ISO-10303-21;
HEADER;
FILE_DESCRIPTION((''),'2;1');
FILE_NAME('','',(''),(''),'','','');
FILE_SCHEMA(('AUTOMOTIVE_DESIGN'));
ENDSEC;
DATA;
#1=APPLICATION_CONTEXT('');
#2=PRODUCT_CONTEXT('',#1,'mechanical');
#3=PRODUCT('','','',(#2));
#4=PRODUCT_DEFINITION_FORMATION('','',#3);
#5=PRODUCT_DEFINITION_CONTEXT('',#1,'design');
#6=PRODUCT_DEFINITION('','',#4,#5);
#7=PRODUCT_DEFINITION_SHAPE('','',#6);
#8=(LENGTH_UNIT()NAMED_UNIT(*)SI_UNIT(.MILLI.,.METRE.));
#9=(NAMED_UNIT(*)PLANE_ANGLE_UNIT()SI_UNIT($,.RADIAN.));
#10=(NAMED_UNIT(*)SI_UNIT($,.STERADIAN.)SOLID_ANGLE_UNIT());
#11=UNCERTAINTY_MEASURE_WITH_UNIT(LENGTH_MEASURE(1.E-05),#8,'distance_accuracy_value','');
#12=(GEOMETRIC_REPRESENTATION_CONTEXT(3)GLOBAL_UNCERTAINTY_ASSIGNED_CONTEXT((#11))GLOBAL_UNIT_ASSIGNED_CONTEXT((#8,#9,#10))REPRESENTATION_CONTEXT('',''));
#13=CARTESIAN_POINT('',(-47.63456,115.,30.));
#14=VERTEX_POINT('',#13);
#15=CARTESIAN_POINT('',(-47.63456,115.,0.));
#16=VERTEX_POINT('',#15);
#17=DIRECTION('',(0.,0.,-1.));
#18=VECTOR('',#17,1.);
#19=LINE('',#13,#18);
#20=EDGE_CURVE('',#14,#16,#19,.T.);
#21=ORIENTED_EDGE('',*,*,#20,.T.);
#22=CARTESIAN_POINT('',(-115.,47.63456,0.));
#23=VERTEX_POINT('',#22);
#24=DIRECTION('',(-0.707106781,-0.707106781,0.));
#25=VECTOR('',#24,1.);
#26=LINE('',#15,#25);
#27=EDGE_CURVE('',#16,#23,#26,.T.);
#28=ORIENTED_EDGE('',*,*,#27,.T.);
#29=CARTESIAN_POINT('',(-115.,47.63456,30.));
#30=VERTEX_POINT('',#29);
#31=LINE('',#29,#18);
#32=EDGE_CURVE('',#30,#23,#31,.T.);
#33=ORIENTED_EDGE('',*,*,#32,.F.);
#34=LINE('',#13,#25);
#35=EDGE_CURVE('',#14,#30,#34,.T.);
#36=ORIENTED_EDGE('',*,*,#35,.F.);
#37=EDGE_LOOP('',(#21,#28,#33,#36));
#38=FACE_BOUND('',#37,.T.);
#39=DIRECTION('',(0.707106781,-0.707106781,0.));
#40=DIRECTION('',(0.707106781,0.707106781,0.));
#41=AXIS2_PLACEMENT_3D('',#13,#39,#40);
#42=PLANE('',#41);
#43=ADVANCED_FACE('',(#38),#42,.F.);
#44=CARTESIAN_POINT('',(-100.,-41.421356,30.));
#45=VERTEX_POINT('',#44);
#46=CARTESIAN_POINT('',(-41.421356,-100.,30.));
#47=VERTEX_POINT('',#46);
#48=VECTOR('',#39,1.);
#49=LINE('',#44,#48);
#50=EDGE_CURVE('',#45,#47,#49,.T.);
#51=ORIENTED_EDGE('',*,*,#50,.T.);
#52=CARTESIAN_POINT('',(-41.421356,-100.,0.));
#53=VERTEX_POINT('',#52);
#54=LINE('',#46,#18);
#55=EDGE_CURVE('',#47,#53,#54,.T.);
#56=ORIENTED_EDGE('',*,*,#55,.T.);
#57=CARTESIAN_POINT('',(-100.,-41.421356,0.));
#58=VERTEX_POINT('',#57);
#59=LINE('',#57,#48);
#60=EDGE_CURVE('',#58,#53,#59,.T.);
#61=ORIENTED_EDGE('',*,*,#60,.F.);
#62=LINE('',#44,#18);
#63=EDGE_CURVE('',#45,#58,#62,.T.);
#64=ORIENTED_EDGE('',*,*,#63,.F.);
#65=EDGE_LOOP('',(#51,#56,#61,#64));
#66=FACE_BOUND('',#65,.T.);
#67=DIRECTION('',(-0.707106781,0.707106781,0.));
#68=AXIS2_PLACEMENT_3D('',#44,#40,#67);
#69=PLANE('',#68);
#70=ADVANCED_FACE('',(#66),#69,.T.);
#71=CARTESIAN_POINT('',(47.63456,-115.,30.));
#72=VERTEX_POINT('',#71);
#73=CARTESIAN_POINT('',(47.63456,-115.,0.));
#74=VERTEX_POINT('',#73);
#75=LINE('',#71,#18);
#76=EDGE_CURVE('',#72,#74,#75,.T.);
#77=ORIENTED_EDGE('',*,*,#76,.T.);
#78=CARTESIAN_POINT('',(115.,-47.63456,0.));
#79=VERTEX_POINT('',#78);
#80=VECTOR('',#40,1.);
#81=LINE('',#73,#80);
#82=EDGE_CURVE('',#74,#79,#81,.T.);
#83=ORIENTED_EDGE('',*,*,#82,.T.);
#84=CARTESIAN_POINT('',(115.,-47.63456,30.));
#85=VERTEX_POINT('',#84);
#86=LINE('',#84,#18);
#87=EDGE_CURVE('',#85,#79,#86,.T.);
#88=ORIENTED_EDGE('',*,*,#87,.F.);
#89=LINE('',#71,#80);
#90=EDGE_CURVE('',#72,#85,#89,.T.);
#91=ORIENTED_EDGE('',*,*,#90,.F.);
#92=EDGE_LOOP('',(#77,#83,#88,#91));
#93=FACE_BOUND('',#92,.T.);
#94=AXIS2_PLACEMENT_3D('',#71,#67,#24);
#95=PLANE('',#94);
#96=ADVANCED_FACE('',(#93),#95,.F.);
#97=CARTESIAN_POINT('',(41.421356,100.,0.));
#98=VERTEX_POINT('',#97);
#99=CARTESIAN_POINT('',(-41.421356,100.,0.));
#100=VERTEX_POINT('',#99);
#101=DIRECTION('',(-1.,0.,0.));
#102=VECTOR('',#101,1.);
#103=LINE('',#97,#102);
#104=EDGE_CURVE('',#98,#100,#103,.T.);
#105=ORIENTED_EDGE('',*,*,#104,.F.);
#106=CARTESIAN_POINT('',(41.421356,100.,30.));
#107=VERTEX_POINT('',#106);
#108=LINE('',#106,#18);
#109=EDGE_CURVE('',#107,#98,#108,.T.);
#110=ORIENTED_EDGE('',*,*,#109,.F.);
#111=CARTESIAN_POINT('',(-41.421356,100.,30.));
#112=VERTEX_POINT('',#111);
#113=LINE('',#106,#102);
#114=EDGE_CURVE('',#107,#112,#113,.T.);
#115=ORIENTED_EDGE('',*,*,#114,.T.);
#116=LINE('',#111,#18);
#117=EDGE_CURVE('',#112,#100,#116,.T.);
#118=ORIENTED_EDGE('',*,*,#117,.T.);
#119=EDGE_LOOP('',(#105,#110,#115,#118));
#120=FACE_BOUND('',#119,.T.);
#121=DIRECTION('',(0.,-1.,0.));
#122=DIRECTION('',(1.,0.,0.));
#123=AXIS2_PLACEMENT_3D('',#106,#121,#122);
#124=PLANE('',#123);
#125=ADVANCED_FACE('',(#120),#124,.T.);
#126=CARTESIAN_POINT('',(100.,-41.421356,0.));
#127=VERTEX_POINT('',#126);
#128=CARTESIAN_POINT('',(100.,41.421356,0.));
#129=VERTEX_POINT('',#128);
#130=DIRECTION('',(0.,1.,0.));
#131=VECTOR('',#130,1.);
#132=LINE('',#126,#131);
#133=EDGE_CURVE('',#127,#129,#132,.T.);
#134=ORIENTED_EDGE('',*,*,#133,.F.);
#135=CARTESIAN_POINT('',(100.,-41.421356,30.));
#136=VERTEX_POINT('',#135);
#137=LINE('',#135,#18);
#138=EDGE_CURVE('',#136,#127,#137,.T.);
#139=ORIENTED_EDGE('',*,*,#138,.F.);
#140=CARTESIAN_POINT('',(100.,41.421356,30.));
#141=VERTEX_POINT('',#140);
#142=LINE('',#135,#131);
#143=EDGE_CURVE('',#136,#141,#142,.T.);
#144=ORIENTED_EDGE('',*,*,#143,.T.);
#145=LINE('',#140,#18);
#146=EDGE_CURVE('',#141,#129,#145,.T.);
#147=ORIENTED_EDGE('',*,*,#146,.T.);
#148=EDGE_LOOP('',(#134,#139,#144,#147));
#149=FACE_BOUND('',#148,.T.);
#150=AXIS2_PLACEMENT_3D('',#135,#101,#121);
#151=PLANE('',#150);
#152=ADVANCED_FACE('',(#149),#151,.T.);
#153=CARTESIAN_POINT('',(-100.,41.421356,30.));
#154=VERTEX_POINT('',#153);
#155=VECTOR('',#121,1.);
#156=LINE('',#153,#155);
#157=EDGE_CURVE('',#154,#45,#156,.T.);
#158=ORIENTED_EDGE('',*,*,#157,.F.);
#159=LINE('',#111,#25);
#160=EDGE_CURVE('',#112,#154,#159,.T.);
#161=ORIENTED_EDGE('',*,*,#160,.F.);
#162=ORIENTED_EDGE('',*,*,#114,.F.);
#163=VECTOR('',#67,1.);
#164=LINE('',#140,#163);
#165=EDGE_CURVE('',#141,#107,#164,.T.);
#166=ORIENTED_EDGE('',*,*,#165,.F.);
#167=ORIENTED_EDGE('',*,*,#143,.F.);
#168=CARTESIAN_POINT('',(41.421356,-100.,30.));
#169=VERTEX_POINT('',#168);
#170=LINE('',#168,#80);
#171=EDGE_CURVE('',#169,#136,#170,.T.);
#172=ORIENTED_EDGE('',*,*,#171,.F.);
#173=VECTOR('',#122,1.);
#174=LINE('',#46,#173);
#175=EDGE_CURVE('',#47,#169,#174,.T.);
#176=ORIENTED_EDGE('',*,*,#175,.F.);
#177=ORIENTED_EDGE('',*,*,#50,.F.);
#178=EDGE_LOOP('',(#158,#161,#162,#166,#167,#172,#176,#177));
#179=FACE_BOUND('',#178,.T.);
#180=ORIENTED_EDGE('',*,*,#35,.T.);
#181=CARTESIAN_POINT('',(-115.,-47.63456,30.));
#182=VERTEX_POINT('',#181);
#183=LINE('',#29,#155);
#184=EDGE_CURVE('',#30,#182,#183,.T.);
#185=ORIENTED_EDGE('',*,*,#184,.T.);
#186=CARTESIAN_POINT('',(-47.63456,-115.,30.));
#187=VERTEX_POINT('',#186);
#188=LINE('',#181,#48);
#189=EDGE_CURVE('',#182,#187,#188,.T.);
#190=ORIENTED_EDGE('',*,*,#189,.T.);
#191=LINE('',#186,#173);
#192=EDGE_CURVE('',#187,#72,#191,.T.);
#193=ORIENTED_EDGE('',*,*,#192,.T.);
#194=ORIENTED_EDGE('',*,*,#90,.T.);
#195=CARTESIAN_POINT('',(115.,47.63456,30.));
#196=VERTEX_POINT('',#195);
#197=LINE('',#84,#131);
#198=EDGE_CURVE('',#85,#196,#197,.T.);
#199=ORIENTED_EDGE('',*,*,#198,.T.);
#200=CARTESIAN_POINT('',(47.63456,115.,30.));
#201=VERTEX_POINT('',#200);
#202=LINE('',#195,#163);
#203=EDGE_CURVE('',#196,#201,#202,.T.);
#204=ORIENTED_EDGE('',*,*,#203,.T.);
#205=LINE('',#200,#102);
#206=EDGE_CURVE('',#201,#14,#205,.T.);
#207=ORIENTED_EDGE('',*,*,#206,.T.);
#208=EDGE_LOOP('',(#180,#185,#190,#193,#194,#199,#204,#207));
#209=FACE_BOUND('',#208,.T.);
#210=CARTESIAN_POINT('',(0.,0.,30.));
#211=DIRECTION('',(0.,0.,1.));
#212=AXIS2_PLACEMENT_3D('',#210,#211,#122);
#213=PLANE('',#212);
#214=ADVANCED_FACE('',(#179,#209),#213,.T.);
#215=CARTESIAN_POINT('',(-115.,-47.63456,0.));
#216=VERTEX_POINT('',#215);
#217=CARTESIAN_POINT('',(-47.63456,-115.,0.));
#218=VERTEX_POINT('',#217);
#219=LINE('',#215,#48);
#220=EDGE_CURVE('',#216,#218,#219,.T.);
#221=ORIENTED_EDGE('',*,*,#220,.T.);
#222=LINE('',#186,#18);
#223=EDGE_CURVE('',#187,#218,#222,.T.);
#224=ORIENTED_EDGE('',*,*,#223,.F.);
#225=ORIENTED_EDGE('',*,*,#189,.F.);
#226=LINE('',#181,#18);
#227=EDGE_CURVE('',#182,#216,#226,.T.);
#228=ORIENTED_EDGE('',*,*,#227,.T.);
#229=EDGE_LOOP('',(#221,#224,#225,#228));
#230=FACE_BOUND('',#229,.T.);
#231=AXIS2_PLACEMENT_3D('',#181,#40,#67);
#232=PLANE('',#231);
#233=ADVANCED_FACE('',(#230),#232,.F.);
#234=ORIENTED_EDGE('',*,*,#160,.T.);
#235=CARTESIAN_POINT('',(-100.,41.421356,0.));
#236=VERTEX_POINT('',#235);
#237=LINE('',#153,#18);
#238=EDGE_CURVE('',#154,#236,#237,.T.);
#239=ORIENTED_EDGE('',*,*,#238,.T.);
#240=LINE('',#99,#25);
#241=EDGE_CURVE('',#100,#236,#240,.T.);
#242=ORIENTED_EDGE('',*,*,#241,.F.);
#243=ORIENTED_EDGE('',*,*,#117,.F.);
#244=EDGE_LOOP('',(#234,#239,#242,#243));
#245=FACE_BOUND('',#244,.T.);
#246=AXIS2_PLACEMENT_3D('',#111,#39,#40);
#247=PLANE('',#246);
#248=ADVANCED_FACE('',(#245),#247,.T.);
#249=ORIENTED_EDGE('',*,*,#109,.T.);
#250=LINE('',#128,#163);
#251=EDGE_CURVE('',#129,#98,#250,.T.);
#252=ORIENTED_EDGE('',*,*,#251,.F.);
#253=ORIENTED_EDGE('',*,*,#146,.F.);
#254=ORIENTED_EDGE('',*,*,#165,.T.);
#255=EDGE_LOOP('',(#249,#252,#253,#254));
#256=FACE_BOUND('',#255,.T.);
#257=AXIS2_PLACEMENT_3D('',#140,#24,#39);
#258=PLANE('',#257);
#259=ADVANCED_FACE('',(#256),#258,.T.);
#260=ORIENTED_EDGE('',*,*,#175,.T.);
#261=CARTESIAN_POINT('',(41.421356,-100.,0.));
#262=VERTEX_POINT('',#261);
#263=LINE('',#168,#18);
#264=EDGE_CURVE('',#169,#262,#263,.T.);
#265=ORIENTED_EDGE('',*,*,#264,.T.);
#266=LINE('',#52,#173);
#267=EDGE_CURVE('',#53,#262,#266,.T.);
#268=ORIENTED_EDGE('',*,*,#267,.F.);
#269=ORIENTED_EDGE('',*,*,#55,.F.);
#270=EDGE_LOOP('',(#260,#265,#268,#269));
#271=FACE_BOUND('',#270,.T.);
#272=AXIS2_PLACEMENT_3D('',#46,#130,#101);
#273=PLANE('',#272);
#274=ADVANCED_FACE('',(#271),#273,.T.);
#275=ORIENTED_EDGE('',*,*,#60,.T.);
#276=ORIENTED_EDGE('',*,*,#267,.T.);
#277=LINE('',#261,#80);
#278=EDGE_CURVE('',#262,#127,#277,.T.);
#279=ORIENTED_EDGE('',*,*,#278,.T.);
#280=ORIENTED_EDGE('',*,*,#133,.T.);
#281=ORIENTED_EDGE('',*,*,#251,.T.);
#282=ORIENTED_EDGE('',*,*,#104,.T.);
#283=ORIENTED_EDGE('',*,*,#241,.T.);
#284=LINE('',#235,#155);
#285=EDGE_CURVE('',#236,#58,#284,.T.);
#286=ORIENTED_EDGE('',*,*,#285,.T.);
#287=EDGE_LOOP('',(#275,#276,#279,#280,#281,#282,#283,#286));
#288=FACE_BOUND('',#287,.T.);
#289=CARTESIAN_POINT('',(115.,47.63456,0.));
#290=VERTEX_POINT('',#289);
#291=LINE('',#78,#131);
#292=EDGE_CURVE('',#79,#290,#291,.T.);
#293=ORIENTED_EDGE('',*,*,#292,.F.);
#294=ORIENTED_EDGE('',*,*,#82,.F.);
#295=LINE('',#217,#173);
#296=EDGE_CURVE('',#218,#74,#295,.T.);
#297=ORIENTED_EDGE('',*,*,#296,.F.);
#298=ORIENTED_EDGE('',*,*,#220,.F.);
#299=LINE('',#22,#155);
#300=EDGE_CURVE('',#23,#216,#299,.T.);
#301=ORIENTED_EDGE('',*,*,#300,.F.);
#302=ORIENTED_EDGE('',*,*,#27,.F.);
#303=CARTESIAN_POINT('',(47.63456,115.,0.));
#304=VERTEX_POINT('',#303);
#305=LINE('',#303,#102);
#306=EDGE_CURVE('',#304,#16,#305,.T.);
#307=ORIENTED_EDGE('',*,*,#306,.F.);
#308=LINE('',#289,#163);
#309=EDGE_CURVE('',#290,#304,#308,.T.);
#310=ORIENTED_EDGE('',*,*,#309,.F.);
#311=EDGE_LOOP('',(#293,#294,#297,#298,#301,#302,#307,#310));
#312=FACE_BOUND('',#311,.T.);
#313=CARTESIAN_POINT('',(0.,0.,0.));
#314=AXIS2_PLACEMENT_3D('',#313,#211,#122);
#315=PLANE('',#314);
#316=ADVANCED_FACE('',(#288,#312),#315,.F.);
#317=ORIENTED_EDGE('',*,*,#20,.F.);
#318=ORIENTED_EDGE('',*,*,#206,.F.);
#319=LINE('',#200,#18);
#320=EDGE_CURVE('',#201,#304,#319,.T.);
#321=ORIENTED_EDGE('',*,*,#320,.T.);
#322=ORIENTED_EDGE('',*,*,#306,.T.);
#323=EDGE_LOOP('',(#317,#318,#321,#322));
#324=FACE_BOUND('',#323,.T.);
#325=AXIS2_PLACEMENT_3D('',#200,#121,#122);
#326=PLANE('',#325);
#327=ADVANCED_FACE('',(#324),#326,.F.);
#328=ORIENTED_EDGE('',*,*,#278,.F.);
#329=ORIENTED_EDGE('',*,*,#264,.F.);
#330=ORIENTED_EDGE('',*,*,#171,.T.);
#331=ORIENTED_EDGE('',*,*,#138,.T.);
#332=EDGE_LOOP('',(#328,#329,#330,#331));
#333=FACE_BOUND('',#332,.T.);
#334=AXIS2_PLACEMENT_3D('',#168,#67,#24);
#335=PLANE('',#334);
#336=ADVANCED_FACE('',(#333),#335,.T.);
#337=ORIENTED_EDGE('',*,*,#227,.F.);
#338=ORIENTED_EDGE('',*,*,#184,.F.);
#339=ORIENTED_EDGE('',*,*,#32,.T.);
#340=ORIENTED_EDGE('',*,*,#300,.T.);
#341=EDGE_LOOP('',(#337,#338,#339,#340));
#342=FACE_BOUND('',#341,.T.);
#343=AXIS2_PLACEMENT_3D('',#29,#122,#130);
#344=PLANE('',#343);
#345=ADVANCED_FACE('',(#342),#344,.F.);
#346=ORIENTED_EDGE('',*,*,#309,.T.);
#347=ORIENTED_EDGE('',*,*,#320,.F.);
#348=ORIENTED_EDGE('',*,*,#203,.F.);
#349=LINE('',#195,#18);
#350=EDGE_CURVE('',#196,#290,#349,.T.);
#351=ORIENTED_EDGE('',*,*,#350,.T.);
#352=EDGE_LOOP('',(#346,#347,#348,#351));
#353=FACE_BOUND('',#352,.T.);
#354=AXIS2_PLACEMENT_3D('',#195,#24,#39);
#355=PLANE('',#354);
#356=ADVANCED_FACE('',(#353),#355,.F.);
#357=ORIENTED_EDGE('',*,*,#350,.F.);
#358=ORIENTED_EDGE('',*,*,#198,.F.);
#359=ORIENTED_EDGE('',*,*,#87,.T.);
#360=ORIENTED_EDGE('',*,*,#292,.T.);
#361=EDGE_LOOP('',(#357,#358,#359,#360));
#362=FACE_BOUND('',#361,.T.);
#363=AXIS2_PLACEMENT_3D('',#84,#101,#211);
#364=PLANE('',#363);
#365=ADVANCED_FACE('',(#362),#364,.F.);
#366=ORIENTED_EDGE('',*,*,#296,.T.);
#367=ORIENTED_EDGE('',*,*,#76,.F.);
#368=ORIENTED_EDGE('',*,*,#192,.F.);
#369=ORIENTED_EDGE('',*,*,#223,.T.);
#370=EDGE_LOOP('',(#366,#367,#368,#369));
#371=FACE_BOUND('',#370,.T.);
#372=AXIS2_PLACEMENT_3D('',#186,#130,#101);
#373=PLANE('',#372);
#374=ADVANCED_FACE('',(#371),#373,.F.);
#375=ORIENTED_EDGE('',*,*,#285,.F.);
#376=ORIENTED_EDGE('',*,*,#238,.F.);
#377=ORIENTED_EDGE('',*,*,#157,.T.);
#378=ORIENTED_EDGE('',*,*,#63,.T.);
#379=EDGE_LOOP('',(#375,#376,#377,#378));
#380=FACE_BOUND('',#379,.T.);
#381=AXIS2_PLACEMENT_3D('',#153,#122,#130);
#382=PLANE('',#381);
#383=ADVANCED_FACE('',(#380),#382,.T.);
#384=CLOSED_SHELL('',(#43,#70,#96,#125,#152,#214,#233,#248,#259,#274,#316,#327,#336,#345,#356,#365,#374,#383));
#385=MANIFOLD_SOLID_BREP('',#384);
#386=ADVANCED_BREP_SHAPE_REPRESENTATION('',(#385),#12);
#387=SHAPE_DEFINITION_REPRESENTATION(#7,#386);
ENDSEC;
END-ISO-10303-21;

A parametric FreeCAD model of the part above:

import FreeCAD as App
import Part
import Sketcher

V = App.Vector


def add_polygon(sketch, points):
    """Adds a closed chain of lines whose ends are joined by coincident constraints."""
    first, n = sketch.GeometryCount, len(points)
    for a, b in zip(points, points[1:] + points[:1]):
        sketch.addGeometry(Part.LineSegment(App.Vector(*a, 0), App.Vector(*b, 0)), False)
    for i in range(n):
        sketch.addConstraint(Sketcher.Constraint("Coincident", first + i, 2, first + (i + 1) % n, 1))

doc = App.newDocument("Part")
body = doc.addObject("PartDesign::Body", "Body")

sketch1 = body.newObject("Sketcher::SketchObject", "Sketch")
sketch1.AttachmentSupport = (doc.getObject("XY_Plane"), [""])
sketch1.MapMode = "FlatFace"
add_polygon(sketch1, [(115, 47.63456), (47.63456, 115), (-47.63456, 115), (-115, 47.63456), (-115, -47.63456), (-47.63456, -115), (47.63456, -115), (115, -47.63456)])
add_polygon(sketch1, [(41.421356, 100), (100, 41.421356), (100, -41.421356), (41.421356, -100), (-41.421356, -100), (-100, -41.421356), (-100, 41.421356), (-41.421356, 100)])
sketch1.addConstraint(Sketcher.Constraint("Horizontal", 1))
sketch1.addConstraint(Sketcher.Constraint("Vertical", 3))
sketch1.addConstraint(Sketcher.Constraint("Horizontal", 5))
sketch1.addConstraint(Sketcher.Constraint("Vertical", 7))
sketch1.addConstraint(Sketcher.Constraint("Vertical", 9))
sketch1.addConstraint(Sketcher.Constraint("Horizontal", 11))
sketch1.addConstraint(Sketcher.Constraint("Vertical", 13))
sketch1.addConstraint(Sketcher.Constraint("Horizontal", 15))
sketch1.addConstraint(Sketcher.Constraint("Symmetric", 0, 2, 4, 2, -1, 1))
sketch1.addConstraint(Sketcher.Constraint("Symmetric", 2, 2, 6, 2, -1, 1))
sketch1.addConstraint(Sketcher.Constraint("Symmetric", 8, 2, 12, 2, -1, 1))
sketch1.addConstraint(Sketcher.Constraint("Symmetric", 10, 2, 14, 2, -1, 1))
sketch1.addConstraint(Sketcher.Constraint("Perpendicular", 0, 2))
sketch1.addConstraint(Sketcher.Constraint("Perpendicular", 2, 4))
sketch1.addConstraint(Sketcher.Constraint("Perpendicular", 4, 6))
sketch1.addConstraint(Sketcher.Constraint("Perpendicular", 6, 8))
sketch1.addConstraint(Sketcher.Constraint("Perpendicular", 8, 10))
sketch1.addConstraint(Sketcher.Constraint("Perpendicular", 10, 12))
sketch1.addConstraint(Sketcher.Constraint("Perpendicular", 12, 14))
sketch1.addConstraint(Sketcher.Constraint("Horizontal", 3, 2, 6, 2))
sketch1.addConstraint(Sketcher.Constraint("Horizontal", 9, 2, 12, 2))
sketch1.addConstraint(Sketcher.Constraint("Vertical", 1, 2, 4, 2))
sketch1.addConstraint(Sketcher.Constraint("Equal", 5, 3))
sketch1.addConstraint(Sketcher.Constraint("Equal", 15, 9))
sketch1.addConstraint(Sketcher.Constraint("DistanceY", -1, 1, 0, 2, 115.0))
sketch1.addConstraint(Sketcher.Constraint("DistanceX", -1, 1, 8, 2, 100.0))
sketch1.addConstraint(Sketcher.Constraint("DistanceX", 1, 2, 1, 1, 95.269119))
sketch1.addConstraint(Sketcher.Constraint("DistanceX", 11, 2, 11, 1, 82.842712))
pad1 = body.newObject("PartDesign::Pad", "Pad")
pad1.Profile = sketch1
pad1.Length = 30

doc.recompute()
